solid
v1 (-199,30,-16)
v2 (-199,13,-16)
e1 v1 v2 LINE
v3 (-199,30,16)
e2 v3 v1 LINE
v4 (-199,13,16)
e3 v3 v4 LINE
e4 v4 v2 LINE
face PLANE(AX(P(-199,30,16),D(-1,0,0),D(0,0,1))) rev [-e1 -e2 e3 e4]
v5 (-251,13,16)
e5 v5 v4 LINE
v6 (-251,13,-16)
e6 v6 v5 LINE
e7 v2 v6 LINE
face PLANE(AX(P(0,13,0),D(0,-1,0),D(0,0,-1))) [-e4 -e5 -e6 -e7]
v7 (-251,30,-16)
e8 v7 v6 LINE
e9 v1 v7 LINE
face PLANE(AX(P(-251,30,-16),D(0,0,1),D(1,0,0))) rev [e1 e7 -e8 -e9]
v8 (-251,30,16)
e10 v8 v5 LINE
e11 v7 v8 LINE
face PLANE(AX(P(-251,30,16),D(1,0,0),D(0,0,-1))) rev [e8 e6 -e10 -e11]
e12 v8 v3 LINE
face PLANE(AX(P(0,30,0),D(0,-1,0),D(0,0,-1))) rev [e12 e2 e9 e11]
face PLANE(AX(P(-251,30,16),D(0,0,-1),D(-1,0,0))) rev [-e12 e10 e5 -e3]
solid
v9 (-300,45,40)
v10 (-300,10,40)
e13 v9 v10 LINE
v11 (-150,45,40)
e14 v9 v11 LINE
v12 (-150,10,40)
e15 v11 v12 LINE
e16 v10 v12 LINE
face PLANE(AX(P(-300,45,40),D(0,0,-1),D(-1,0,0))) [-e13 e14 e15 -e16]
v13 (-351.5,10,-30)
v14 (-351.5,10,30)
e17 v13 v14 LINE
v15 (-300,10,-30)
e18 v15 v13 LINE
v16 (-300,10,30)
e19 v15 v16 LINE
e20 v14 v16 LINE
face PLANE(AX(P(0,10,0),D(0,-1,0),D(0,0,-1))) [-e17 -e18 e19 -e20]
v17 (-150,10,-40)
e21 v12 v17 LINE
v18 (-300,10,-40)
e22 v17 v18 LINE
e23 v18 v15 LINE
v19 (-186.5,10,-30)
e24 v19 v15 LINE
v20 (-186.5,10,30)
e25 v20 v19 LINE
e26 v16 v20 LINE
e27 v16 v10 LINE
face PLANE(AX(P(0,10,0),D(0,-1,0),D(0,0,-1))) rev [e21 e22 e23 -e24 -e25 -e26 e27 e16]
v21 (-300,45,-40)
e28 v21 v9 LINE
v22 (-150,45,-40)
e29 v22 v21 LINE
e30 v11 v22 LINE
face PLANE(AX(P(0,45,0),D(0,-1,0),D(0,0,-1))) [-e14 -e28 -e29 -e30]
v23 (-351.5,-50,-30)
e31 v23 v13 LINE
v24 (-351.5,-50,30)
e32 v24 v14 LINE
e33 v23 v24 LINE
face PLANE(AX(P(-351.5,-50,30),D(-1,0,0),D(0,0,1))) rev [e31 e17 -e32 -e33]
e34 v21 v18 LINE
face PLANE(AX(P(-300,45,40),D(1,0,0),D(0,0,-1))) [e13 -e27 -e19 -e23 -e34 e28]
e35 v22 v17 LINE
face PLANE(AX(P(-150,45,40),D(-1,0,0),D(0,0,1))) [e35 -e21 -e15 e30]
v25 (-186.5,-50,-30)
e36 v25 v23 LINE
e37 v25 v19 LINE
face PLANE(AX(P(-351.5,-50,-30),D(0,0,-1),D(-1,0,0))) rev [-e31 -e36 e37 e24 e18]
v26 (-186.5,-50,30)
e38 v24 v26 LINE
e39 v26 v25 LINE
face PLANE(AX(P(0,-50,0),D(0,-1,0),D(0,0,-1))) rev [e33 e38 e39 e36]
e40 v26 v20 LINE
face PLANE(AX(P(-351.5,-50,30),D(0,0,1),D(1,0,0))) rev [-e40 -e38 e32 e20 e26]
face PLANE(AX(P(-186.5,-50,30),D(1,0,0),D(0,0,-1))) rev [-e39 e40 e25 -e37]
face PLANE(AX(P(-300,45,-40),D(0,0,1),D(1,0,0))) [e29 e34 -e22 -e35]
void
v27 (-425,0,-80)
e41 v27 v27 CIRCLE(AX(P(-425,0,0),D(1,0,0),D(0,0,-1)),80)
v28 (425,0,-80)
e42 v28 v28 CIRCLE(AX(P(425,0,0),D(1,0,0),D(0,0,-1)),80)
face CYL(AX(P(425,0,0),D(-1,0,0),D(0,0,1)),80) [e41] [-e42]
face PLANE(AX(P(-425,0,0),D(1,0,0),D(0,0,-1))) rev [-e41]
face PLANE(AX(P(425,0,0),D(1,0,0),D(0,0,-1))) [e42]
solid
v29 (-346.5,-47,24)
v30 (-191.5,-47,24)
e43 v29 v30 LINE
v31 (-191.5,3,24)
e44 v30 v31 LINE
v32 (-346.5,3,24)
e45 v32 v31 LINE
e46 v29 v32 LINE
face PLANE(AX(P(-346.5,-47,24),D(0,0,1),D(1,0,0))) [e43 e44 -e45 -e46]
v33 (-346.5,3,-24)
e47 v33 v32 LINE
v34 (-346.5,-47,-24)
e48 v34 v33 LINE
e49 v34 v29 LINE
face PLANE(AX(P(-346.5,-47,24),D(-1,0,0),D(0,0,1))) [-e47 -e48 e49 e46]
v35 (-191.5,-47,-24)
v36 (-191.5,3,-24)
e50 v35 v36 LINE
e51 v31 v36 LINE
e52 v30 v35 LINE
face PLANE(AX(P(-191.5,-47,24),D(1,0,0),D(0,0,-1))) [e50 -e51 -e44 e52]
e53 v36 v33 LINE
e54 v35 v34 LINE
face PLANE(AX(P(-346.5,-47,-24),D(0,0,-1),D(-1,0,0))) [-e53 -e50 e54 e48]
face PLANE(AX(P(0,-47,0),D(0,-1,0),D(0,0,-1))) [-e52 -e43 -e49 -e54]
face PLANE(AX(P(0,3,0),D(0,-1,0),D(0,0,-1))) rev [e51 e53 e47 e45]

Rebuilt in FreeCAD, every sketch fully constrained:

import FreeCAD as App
import Part
import Sketcher

V = App.Vector
Q = App.Units.Quantity

doc = App.newDocument("Part")
body = doc.addObject("PartDesign::Body", "Body")

# Sketch on YZ plane
sketch1 = doc.addObject("Sketcher::SketchObject", "Sketch")
body.addObject(sketch1)
sketch1.AttachmentSupport = (doc.YZ_Plane, [""])
sketch1.MapMode = "FlatFace"
sketch1.addGeometry(Part.Circle(V(0, 0, 0), V(0, 0, 1), 80), False)
sketch1.addConstraint(Sketcher.Constraint("Coincident", 0, 3, -1, 1))
sketch1.addConstraint(Sketcher.Constraint("Diameter", 0, Q("160 mm")))
pad1 = doc.addObject("PartDesign::Pad", "Pad")
body.addObject(pad1)
pad1.Profile = sketch1
pad1.Length = 850
pad1.Midplane = True

# Sketch on XZ plane
sketch2 = doc.addObject("Sketcher::SketchObject", "Sketch001")
body.addObject(sketch2)
sketch2.AttachmentSupport = (doc.XZ_Plane, [""])
sketch2.MapMode = "FlatFace"
sketch2.AttachmentOffset = App.Placement(V(0, 0, -10), App.Rotation())
sketch2.addGeometry(Part.LineSegment(V(-352, -30, 0), V(-352, 30, 0)), False)
sketch2.addGeometry(Part.LineSegment(V(-352, 30, 0), V(-186, 30, 0)), False)
sketch2.addGeometry(Part.LineSegment(V(-186, 30, 0), V(-186, -30, 0)), False)
sketch2.addGeometry(Part.LineSegment(V(-186, -30, 0), V(-352, -30, 0)), False)
sketch2.addConstraint(Sketcher.Constraint("Coincident", 0, 2, 1, 1))
sketch2.addConstraint(Sketcher.Constraint("Coincident", 1, 2, 2, 1))
sketch2.addConstraint(Sketcher.Constraint("Coincident", 2, 2, 3, 1))
sketch2.addConstraint(Sketcher.Constraint("Coincident", 3, 2, 0, 1))
sketch2.addConstraint(Sketcher.Constraint("Vertical", 0))
sketch2.addConstraint(Sketcher.Constraint("Horizontal", 1))
sketch2.addConstraint(Sketcher.Constraint("Vertical", 2))
sketch2.addConstraint(Sketcher.Constraint("Horizontal", 3))
sketch2.addConstraint(Sketcher.Constraint("DistanceX", 1, 1, 1, 2, Q("165 mm")))
sketch2.addConstraint(Sketcher.Constraint("DistanceY", 0, 1, 0, 2, Q("60 mm")))
sketch2.addConstraint(Sketcher.Constraint("DistanceY", -1, 1, 0, 2, Q("30 mm")))
sketch2.addConstraint(Sketcher.Constraint("DistanceX", 0, 2, -1, 1, Q("351.5 mm")))
pocket1 = doc.addObject("PartDesign::Pocket", "Pocket")
body.addObject(pocket1)
pocket1.Profile = sketch2
pocket1.Length = 60
pocket1.Reversed = True

# Sketch on XZ plane
sketch3 = doc.addObject("Sketcher::SketchObject", "Sketch002")
body.addObject(sketch3)
sketch3.AttachmentSupport = (doc.XZ_Plane, [""])
sketch3.MapMode = "FlatFace"
sketch3.AttachmentOffset = App.Placement(V(0, 0, -10), App.Rotation())
sketch3.addGeometry(Part.LineSegment(V(-300, -40, 0), V(-300, 40, 0)), False)
sketch3.addGeometry(Part.LineSegment(V(-300, 40, 0), V(-150, 40, 0)), False)
sketch3.addGeometry(Part.LineSegment(V(-150, 40, 0), V(-150, -40, 0)), False)
sketch3.addGeometry(Part.LineSegment(V(-150, -40, 0), V(-300, -40, 0)), False)
sketch3.addConstraint(Sketcher.Constraint("Coincident", 0, 2, 1, 1))
sketch3.addConstraint(Sketcher.Constraint("Coincident", 1, 2, 2, 1))
sketch3.addConstraint(Sketcher.Constraint("Coincident", 2, 2, 3, 1))
sketch3.addConstraint(Sketcher.Constraint("Coincident", 3, 2, 0, 1))
sketch3.addConstraint(Sketcher.Constraint("Vertical", 0))
sketch3.addConstraint(Sketcher.Constraint("Horizontal", 1))
sketch3.addConstraint(Sketcher.Constraint("Vertical", 2))
sketch3.addConstraint(Sketcher.Constraint("Horizontal", 3))
sketch3.addConstraint(Sketcher.Constraint("DistanceX", 1, 1, 1, 2, Q("150 mm")))
sketch3.addConstraint(Sketcher.Constraint("DistanceY", 0, 1, 0, 2, Q("80 mm")))
sketch3.addConstraint(Sketcher.Constraint("DistanceX", 0, 2, -1, 1, Q("300 mm")))
sketch3.addConstraint(Sketcher.Constraint("DistanceY", -1, 1, 0, 2, Q("40 mm")))
pocket2 = doc.addObject("PartDesign::Pocket", "Pocket001")
body.addObject(pocket2)
pocket2.Profile = sketch3
pocket2.Length = 35
body2 = doc.addObject("PartDesign::Body", "Body001")

# Sketch on XZ plane
sketch4 = doc.addObject("Sketcher::SketchObject", "Sketch003")
body2.addObject(sketch4)
sketch4.AttachmentSupport = (doc.getObject("XZ_Plane001"), [""])
sketch4.MapMode = "FlatFace"
sketch4.addGeometry(Part.LineSegment(V(-346, -24, 0), V(-346, 24, 0)), False)
sketch4.addGeometry(Part.LineSegment(V(-346, 24, 0), V(-192, 24, 0)), False)
sketch4.addGeometry(Part.LineSegment(V(-192, 24, 0), V(-192, -24, 0)), False)
sketch4.addGeometry(Part.LineSegment(V(-192, -24, 0), V(-346, -24, 0)), False)
sketch4.addConstraint(Sketcher.Constraint("Coincident", 0, 2, 1, 1))
sketch4.addConstraint(Sketcher.Constraint("Coincident", 1, 2, 2, 1))
sketch4.addConstraint(Sketcher.Constraint("Coincident", 2, 2, 3, 1))
sketch4.addConstraint(Sketcher.Constraint("Coincident", 3, 2, 0, 1))
sketch4.addConstraint(Sketcher.Constraint("Vertical", 0))
sketch4.addConstraint(Sketcher.Constraint("Horizontal", 1))
sketch4.addConstraint(Sketcher.Constraint("Vertical", 2))
sketch4.addConstraint(Sketcher.Constraint("Horizontal", 3))
sketch4.addConstraint(Sketcher.Constraint("DistanceX", 1, 1, 1, 2, Q("155 mm")))
sketch4.addConstraint(Sketcher.Constraint("DistanceY", 0, 1, 0, 2, Q("48 mm")))
sketch4.addConstraint(Sketcher.Constraint("DistanceY", -1, 1, 0, 2, Q("24 mm")))
sketch4.addConstraint(Sketcher.Constraint("DistanceX", 0, 2, -1, 1, Q("346.5 mm")))
pad2 = doc.addObject("PartDesign::Pad", "Pad001")
body2.addObject(pad2)
pad2.Profile = sketch4
pad2.Type = "TwoLengths"
pad2.Length = 3
pad2.Length2 = 47
pad2.Reversed = True
body3 = doc.addObject("PartDesign::Body", "Body002")

# Sketch on XZ plane
sketch5 = doc.addObject("Sketcher::SketchObject", "Sketch004")
body3.addObject(sketch5)
sketch5.AttachmentSupport = (doc.getObject("XZ_Plane002"), [""])
sketch5.MapMode = "FlatFace"
sketch5.AttachmentOffset = App.Placement(V(0, 0, -13), App.Rotation())
sketch5.addGeometry(Part.LineSegment(V(-251, -16, 0), V(-251, 16, 0)), False)
sketch5.addGeometry(Part.LineSegment(V(-251, 16, 0), V(-199, 16, 0)), False)
sketch5.addGeometry(Part.LineSegment(V(-199, 16, 0), V(-199, -16, 0)), False)
sketch5.addGeometry(Part.LineSegment(V(-199, -16, 0), V(-251, -16, 0)), False)
sketch5.addConstraint(Sketcher.Constraint("Coincident", 0, 2, 1, 1))
sketch5.addConstraint(Sketcher.Constraint("Coincident", 1, 2, 2, 1))
sketch5.addConstraint(Sketcher.Constraint("Coincident", 2, 2, 3, 1))
sketch5.addConstraint(Sketcher.Constraint("Coincident", 3, 2, 0, 1))
sketch5.addConstraint(Sketcher.Constraint("Vertical", 0))
sketch5.addConstraint(Sketcher.Constraint("Horizontal", 1))
sketch5.addConstraint(Sketcher.Constraint("Vertical", 2))
sketch5.addConstraint(Sketcher.Constraint("Horizontal", 3))
sketch5.addConstraint(Sketcher.Constraint("DistanceX", 1, 1, 1, 2, Q("52 mm")))
sketch5.addConstraint(Sketcher.Constraint("DistanceY", 0, 1, 0, 2, Q("32 mm")))
sketch5.addConstraint(Sketcher.Constraint("DistanceX", 0, 2, -1, 1, Q("251 mm")))
sketch5.addConstraint(Sketcher.Constraint("DistanceY", -1, 1, 0, 2, Q("16 mm")))
pad3 = doc.addObject("PartDesign::Pad", "Pad002")
body3.addObject(pad3)
pad3.Profile = sketch5
pad3.Length = 17
pad3.Reversed = True

doc.recompute()
